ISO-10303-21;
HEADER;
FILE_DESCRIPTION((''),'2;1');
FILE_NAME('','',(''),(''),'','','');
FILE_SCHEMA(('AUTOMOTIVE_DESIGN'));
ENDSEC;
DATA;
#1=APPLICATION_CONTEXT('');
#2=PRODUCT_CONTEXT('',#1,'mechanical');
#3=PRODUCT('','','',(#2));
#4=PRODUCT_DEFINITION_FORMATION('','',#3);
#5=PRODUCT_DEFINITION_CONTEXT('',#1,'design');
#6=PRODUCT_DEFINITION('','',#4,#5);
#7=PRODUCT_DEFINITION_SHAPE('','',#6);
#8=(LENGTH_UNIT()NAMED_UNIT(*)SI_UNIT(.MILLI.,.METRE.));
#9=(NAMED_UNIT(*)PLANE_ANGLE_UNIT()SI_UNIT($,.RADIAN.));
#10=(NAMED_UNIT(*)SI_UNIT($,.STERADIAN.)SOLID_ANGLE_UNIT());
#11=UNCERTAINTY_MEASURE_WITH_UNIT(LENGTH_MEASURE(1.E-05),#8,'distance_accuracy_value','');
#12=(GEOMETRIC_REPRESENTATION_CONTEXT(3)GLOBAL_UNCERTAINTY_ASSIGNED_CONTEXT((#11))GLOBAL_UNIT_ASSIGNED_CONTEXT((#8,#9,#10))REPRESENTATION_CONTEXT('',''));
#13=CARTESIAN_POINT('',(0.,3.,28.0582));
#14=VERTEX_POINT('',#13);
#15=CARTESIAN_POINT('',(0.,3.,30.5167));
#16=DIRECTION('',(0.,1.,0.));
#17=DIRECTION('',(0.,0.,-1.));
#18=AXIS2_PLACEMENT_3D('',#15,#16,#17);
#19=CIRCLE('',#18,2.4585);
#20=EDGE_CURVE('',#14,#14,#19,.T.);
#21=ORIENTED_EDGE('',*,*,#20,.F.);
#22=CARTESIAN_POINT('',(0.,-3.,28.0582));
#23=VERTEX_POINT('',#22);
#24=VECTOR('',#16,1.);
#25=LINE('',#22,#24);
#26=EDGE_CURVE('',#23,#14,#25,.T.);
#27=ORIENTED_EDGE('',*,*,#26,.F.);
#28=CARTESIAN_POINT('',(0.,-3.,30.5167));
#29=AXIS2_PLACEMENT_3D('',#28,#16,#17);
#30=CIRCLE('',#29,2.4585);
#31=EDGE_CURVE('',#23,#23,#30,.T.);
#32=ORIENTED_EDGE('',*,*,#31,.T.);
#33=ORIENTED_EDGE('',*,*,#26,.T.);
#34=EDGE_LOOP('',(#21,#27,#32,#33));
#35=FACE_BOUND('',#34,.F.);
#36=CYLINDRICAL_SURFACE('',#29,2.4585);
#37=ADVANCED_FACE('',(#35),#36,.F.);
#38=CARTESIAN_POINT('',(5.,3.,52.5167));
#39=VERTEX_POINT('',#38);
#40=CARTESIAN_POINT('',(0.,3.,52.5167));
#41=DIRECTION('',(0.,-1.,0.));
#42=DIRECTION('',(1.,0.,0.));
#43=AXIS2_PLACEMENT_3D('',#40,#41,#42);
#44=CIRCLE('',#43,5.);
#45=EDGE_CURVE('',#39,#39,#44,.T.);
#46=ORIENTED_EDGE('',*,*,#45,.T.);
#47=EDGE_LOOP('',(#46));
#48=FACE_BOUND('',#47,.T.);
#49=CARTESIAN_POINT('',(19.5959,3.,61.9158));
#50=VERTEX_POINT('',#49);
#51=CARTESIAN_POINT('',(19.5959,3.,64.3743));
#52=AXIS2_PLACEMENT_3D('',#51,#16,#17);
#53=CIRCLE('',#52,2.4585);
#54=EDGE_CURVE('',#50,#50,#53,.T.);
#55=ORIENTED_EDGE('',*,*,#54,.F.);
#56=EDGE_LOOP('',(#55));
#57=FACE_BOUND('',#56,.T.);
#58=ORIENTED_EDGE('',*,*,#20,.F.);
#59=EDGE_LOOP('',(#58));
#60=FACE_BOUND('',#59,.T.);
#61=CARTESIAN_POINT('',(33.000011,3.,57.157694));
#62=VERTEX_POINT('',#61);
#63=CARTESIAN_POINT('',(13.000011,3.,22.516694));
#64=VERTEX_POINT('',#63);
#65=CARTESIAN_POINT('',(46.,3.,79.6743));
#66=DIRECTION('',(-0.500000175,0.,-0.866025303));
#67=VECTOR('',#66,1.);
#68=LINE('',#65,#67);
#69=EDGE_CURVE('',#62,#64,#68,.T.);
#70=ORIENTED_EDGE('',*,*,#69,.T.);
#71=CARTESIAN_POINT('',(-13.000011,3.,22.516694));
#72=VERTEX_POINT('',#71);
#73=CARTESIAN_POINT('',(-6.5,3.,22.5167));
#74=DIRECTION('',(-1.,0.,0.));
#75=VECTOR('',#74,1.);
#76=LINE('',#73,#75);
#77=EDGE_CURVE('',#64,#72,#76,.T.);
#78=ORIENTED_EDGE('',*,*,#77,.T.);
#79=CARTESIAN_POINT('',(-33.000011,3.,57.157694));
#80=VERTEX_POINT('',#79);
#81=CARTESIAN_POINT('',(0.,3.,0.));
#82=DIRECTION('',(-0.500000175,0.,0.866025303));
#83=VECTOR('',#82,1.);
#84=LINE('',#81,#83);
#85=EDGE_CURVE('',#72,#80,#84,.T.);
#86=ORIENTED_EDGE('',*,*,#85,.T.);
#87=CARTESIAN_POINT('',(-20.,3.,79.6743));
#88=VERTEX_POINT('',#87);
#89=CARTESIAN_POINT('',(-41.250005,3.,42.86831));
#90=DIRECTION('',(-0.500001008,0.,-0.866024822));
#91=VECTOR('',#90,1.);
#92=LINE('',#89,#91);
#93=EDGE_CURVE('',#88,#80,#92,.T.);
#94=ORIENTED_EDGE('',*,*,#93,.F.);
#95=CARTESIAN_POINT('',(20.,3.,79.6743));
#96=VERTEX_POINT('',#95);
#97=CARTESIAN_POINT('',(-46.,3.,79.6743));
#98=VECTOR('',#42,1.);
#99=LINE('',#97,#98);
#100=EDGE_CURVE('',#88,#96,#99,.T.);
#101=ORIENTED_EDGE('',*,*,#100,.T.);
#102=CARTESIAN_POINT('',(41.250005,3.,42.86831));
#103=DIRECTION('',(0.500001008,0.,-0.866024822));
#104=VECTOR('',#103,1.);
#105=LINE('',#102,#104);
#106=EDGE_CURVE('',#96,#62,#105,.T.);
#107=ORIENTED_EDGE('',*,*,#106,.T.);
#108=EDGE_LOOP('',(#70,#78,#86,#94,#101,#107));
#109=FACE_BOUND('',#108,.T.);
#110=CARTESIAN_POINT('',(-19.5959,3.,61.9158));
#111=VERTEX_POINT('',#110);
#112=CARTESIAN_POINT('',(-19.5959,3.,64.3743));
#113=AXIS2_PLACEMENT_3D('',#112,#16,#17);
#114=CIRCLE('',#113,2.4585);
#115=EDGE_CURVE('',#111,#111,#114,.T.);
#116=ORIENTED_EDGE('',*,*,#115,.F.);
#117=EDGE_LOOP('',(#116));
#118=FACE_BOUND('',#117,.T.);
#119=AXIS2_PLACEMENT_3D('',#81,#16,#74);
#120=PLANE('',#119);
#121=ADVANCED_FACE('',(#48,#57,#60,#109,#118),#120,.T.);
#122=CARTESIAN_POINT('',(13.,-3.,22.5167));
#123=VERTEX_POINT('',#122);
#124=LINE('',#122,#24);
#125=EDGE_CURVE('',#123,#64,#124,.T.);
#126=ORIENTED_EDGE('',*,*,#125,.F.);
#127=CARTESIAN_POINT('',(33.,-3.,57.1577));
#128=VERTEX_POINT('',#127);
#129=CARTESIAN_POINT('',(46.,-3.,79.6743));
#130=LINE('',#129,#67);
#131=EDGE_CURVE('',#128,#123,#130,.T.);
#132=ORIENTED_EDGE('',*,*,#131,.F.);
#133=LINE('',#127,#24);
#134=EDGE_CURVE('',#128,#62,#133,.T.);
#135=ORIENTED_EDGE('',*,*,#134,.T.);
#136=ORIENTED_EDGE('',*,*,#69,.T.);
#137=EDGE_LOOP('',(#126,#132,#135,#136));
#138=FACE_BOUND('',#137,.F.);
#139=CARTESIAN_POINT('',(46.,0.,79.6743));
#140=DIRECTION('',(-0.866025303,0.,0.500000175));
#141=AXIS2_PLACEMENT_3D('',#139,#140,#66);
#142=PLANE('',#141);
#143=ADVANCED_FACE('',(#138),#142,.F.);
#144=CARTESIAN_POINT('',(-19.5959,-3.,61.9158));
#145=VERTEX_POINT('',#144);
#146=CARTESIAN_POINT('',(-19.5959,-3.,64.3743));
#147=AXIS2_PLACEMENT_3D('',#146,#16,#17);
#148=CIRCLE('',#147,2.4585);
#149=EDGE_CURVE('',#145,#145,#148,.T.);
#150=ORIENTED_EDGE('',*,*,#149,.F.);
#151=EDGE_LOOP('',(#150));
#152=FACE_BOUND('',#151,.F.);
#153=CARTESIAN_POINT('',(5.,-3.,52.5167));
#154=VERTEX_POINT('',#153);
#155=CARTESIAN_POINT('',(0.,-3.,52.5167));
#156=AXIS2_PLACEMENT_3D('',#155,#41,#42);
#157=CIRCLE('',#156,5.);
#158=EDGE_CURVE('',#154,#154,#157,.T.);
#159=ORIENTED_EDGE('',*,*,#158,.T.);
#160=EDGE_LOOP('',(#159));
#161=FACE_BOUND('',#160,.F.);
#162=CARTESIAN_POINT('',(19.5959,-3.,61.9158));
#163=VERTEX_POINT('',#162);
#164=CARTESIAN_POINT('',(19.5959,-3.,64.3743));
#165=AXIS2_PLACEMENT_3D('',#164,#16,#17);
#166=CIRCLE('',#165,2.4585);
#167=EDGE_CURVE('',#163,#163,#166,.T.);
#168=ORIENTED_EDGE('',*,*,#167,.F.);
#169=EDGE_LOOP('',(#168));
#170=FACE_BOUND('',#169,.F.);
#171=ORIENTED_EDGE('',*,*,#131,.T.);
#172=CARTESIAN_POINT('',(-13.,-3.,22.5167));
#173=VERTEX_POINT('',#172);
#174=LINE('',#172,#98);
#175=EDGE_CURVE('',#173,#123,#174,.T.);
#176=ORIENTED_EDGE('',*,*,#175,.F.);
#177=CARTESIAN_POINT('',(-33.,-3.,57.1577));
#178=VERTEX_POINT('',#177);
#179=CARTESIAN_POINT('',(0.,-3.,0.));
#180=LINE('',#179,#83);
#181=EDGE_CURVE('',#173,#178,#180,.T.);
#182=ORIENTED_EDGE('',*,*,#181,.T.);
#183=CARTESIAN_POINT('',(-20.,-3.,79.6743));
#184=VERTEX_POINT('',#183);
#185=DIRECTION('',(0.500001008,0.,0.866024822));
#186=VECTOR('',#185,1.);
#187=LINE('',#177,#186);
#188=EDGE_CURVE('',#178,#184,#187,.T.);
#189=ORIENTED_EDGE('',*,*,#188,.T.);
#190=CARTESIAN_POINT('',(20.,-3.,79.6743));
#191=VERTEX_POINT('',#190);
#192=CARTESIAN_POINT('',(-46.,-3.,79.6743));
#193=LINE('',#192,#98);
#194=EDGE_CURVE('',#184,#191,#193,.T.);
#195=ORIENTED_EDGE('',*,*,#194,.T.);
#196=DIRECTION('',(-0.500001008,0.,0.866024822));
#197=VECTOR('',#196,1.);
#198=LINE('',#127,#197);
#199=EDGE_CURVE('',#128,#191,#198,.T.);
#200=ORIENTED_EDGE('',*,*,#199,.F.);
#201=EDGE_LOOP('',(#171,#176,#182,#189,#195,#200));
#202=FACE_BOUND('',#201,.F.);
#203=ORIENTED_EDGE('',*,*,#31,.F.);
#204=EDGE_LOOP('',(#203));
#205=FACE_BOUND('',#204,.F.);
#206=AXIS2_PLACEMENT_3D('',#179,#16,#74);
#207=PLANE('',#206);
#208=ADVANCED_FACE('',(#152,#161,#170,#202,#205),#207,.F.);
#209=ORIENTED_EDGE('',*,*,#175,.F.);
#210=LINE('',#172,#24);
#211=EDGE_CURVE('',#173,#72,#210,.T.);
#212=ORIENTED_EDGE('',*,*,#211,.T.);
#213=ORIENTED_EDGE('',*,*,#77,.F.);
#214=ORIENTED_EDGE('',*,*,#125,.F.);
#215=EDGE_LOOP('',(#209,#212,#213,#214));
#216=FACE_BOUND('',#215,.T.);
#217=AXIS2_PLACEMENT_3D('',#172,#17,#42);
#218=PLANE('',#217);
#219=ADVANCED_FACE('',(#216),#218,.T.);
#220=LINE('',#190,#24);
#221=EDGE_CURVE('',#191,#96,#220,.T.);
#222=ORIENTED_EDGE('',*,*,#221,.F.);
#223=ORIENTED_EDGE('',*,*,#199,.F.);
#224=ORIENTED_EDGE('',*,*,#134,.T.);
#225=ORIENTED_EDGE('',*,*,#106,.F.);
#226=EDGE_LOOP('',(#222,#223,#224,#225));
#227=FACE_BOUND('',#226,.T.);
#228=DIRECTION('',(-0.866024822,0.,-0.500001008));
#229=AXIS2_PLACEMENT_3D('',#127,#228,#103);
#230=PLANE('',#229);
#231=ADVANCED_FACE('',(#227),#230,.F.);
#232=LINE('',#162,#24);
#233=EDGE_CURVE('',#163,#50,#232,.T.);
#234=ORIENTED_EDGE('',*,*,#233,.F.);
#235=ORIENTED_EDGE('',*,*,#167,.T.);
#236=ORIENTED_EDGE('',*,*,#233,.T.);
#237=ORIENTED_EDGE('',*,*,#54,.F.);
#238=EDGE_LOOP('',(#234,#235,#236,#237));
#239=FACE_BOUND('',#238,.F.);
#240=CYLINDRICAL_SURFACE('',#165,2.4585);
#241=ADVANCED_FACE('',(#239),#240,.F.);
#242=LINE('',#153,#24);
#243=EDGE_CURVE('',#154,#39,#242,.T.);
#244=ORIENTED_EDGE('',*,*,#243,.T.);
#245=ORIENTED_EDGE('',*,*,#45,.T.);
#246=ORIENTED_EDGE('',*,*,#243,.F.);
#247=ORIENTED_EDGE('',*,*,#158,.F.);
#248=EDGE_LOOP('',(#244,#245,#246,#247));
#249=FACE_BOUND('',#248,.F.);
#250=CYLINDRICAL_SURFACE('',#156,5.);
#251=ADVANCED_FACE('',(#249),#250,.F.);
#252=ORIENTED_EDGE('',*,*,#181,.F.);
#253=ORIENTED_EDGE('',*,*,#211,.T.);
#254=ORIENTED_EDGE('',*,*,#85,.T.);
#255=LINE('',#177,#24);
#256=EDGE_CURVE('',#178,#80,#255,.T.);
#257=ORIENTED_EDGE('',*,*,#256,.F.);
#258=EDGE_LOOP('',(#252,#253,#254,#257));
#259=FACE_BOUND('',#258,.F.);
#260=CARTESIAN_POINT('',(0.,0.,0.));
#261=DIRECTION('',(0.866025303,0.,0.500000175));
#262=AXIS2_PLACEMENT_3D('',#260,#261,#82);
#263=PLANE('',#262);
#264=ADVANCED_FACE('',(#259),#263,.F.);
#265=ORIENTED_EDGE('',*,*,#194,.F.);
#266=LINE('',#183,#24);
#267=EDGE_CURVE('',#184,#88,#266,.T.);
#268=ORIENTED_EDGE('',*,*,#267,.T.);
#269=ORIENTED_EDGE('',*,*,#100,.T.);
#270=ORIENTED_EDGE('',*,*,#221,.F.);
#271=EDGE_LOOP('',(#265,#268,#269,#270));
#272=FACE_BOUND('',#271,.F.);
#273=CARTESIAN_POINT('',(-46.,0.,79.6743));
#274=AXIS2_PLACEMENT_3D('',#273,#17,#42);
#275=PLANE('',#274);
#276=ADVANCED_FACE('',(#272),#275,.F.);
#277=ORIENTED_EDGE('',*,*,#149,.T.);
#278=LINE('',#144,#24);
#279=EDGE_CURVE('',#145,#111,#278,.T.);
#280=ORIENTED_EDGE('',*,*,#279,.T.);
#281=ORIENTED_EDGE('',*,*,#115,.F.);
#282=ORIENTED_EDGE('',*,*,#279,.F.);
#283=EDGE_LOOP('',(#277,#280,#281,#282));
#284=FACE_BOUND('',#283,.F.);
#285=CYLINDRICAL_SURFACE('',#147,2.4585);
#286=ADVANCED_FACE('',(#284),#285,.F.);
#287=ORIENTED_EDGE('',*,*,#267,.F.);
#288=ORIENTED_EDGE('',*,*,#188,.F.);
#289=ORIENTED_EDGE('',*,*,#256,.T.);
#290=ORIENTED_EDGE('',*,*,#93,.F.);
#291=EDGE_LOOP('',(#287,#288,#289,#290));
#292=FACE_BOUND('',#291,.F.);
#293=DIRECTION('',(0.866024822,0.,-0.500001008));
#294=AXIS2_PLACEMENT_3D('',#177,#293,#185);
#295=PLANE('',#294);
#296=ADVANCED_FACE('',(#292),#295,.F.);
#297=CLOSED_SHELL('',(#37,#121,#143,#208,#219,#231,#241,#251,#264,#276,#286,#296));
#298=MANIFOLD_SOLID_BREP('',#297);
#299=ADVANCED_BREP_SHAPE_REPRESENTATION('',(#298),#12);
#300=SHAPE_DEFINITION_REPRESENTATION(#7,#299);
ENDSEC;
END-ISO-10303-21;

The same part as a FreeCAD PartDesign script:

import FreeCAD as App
import Part
import Sketcher
from FreeCAD import Vector
Q = App.Units.Quantity


def add_polygon(sketch, points):
    """Adds a closed chain of lines whose ends are joined by coincident constraints."""
    first, n = sketch.GeometryCount, len(points)
    for a, b in zip(points, points[1:] + points[:1]):
        sketch.addGeometry(Part.LineSegment(App.Vector(*a, 0), App.Vector(*b, 0)), False)
    for i in range(n):
        sketch.addConstraint(Sketcher.Constraint("Coincident", first + i, 2, first + (i + 1) % n, 1))

doc = App.newDocument("Part")
body = doc.addObject("PartDesign::Body", "Body")

sketch1 = body.newObject("Sketcher::SketchObject", "Sketch")
sketch1.AttachmentSupport = (doc.getObject("XZ_Plane"), [""])
sketch1.MapMode = "FlatFace"
add_polygon(sketch1, [(46, 79.6743), (0, 0), (-46, 79.6743)])
sketch1.addConstraint([
    Sketcher.Constraint("Horizontal", 2),
    Sketcher.Constraint("Coincident", 0, 2, -1, 1),
    Sketcher.Constraint("Equal", 0, 1),
    Sketcher.Constraint("DistanceX", 2, 1, 2, 2, Q("92 mm")),
    Sketcher.Constraint("Distance", 0, Q("92 mm")),
])
pad1 = body.newObject("PartDesign::Pad", "Pad")
pad1.Profile = sketch1
pad1.Length = 6
pad1.Midplane = True

sketch2 = body.newObject("Sketcher::SketchObject", "Sketch001")
sketch2.AttachmentSupport = (doc.getObject("XZ_Plane"), [""])
sketch2.MapMode = "FlatFace"
sketch2.AttachmentOffset = App.Placement(Vector(0, 0, 3), App.Rotation())
add_polygon(sketch2, [(-33, 57.1577), (-20, 79.6743), (-46, 79.6743)])
sketch2.addConstraint([
    Sketcher.Constraint("Horizontal", 1),
    Sketcher.Constraint("Equal", 0, 2),
    Sketcher.Constraint("DistanceX", 1, 2, 1, 1, Q("26 mm")),
    Sketcher.Constraint("Distance", 0, Q("26 mm")),
    Sketcher.Constraint("DistanceX", 0, 2, -1, 1, Q("20 mm")),
    Sketcher.Constraint("DistanceY", -1, 1, 0, 2, Q("79.6743 mm")),
])
pocket1 = body.newObject("PartDesign::Pocket", "Pocket")
pocket1.Profile = sketch2
pocket1.Length = 10
doc.recompute()

mirrored = body.newObject("PartDesign::Mirrored", "Mirrored")
mirrored.Originals = [pocket1]
mirrored.MirrorPlane = (doc.getObject("YZ_Plane"), [""])
body.Tip = mirrored

sketch3 = body.newObject("Sketcher::SketchObject", "Sketch002")
sketch3.AttachmentSupport = (doc.getObject("XZ_Plane"), [""])
sketch3.MapMode = "FlatFace"
sketch3.AttachmentOffset = App.Placement(Vector(0, 0, 3), App.Rotation())
add_polygon(sketch3, [(-13.000013, 22.516692), (0, 0), (13, 22.5167)])
sketch3.addConstraint([
    Sketcher.Constraint("Horizontal", 2),
    Sketcher.Constraint("Coincident", 0, 2, -1, 1),
    Sketcher.Constraint("Equal", 0, 1),
    Sketcher.Constraint("DistanceX", 2, 2, 2, 1, Q("26 mm")),
    Sketcher.Constraint("Distance", 0, Q("26 mm")),
])
pocket2 = body.newObject("PartDesign::Pocket", "Pocket001")
pocket2.Profile = sketch3
pocket2.Length = 10

sketch4 = body.newObject("Sketcher::SketchObject", "Sketch003")
sketch4.AttachmentSupport = (doc.getObject("XZ_Plane"), [""])
sketch4.MapMode = "FlatFace"
sketch4.AttachmentOffset = App.Placement(Vector(0, 0, 3), App.Rotation())
sketch4.addGeometry([
    Part.Circle(Vector(-19.5959, 64.3743, 0), Vector(0, 0, 1), 2.4585),
    Part.Circle(Vector(19.5959, 64.3743, 0), Vector(0, 0, 1), 2.4585),
    Part.Circle(Vector(0, 30.5167, 0), Vector(0, 0, 1), 2.4585),
], False)
sketch4.addConstraint([
    Sketcher.Constraint("Equal", 0, 1),
    Sketcher.Constraint("Equal", 1, 2),
    Sketcher.Constraint("Symmetric", 0, 3, 1, 3, -2),
    Sketcher.Constraint("PointOnObject", 2, 3, -2),
    Sketcher.Constraint("Diameter", 0, Q("4.917 mm")),
    Sketcher.Constraint("DistanceX", 0, 3, -1, 1, Q("19.596 mm")),
    Sketcher.Constraint("DistanceY", -1, 1, 0, 3, Q("64.3743 mm")),
    Sketcher.Constraint("DistanceY", -1, 1, 2, 3, Q("30.5167 mm")),
])
doc.recompute()
hole = body.newObject("PartDesign::Hole", "Hole")
hole.Profile = sketch4
hole.ThreadType = "None"
hole.Diameter = 4.917
hole.DepthType = "Dimension"
hole.Depth = 6
hole.DrillPoint = "Flat"

sketch5 = body.newObject("Sketcher::SketchObject", "Sketch004")
sketch5.AttachmentSupport = (doc.getObject("XZ_Plane"), [""])
sketch5.MapMode = "FlatFace"
sketch5.AttachmentOffset = App.Placement(Vector(0, 0, 3), App.Rotation())
sketch5.addGeometry(Part.Circle(Vector(0, 52.5167, 0), Vector(0, 0, 1), 5), False)
sketch5.addConstraint([
    Sketcher.Constraint("PointOnObject", 0, 3, -2),
    Sketcher.Constraint("Diameter", 0, Q("10 mm")),
    Sketcher.Constraint("DistanceY", -1, 1, 0, 3, Q("52.5167 mm")),
])
pocket3 = body.newObject("PartDesign::Pocket", "Pocket002")
pocket3.Profile = sketch5
pocket3.Length = 10

doc.recompute()
